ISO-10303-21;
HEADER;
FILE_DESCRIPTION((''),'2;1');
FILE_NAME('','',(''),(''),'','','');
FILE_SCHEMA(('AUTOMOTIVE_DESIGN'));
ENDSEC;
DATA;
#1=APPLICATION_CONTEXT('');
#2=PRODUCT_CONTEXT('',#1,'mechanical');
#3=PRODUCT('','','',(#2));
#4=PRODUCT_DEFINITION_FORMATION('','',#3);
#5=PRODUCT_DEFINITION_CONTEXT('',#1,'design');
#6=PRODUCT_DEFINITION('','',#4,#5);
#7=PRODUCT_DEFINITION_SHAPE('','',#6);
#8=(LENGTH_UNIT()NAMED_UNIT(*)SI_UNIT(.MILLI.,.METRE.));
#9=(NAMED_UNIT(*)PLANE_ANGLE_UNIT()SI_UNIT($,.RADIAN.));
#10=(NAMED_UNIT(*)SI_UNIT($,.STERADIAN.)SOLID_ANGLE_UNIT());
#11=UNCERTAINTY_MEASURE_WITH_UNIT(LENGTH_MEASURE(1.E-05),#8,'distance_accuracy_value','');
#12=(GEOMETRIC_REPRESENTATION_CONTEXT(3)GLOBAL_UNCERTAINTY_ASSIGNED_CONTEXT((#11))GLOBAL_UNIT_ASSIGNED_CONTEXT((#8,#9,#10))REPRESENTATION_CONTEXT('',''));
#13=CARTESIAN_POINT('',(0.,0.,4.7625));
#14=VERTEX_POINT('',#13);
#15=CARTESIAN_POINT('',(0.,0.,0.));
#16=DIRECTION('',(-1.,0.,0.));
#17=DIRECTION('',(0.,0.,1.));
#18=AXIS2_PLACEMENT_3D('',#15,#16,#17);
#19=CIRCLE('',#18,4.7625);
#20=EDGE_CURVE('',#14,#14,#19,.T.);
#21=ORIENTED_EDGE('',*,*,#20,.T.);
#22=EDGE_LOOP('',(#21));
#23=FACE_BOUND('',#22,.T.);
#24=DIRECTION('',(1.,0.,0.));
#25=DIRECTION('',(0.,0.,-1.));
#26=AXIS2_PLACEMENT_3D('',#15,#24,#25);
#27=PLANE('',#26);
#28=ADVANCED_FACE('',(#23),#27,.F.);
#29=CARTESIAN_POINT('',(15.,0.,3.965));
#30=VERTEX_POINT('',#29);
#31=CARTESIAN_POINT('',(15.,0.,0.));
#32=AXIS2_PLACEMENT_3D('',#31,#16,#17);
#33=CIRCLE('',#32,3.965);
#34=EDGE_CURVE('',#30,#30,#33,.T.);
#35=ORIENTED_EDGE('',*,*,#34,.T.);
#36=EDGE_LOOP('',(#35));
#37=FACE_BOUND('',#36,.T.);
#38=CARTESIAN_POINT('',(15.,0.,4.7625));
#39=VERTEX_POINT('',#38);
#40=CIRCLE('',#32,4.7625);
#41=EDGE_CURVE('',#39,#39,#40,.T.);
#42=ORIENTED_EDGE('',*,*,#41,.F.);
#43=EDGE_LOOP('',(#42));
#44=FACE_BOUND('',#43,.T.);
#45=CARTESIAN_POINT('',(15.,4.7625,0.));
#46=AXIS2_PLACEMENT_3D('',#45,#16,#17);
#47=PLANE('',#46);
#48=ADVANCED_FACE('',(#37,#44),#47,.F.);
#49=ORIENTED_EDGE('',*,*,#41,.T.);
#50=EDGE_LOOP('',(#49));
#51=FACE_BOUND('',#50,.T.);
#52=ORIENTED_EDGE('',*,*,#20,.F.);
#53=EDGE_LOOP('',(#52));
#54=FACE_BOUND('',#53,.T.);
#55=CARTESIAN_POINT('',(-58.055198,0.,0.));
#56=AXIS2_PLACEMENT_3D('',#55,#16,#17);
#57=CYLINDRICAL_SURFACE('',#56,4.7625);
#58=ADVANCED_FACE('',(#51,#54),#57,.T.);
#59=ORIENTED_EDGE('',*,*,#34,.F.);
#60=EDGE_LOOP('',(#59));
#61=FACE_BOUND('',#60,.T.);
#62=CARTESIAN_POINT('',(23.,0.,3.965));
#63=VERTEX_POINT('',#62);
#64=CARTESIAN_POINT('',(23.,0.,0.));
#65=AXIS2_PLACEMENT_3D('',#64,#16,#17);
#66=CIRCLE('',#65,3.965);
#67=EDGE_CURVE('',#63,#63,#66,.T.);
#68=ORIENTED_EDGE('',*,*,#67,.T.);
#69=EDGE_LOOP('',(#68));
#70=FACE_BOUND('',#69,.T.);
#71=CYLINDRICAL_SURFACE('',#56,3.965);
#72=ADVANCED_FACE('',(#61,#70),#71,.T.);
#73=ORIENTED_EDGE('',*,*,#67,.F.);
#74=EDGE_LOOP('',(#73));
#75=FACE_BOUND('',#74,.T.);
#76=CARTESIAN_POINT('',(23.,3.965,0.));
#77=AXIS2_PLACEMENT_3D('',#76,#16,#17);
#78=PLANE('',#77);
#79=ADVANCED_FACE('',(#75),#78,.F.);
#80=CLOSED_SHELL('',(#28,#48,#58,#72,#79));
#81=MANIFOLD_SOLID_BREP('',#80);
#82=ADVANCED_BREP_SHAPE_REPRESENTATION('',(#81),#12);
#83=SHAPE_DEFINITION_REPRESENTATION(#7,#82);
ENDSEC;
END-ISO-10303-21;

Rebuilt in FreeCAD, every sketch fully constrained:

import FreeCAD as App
import Part
import Sketcher
from FreeCAD import Vector
Q = App.Units.Quantity

doc = App.newDocument("Part")
params = doc.addObject("Spreadsheet::Sheet", "Params")
for row, (alias, value) in enumerate([
    ("sketch1_width", "23 mm"),
    ("sketch1_width2", "8 mm"),
    ("revolution_angle", "360 deg"),
], start=1):
    params.set(f"A{row}", alias)
    params.set(f"B{row}", "=" + value)
    params.setAlias(f"B{row}", alias)

body = doc.addObject("PartDesign::Body", "Body")

sketch1 = doc.addObject("Sketcher::SketchObject", "Sketch")
body.addObject(sketch1)
sketch1.AttachmentSupport = (doc.XY_Plane, [""])
sketch1.MapMode = "FlatFace"
sketch1.addGeometry([
    Part.LineSegment(Vector(0, 4.7625, 0), Vector(0, 0, 0)),
    Part.LineSegment(Vector(0, 0, 0), Vector(23, 0, 0)),
    Part.LineSegment(Vector(23, 0, 0), Vector(23, 3.965, 0)),
    Part.LineSegment(Vector(23, 3.965, 0), Vector(15, 3.965, 0)),
    Part.LineSegment(Vector(15, 3.965, 0), Vector(15, 4.7625, 0)),
    Part.LineSegment(Vector(15, 4.7625, 0), Vector(0, 4.7625, 0)),
], False)
sketch1.addConstraint([
    Sketcher.Constraint("Coincident", 0, 2, 1, 1),
    Sketcher.Constraint("Coincident", 1, 2, 2, 1),
    Sketcher.Constraint("Coincident", 2, 2, 3, 1),
    Sketcher.Constraint("Coincident", 3, 2, 4, 1),
    Sketcher.Constraint("Coincident", 4, 2, 5, 1),
    Sketcher.Constraint("Coincident", 5, 2, 0, 1),
    Sketcher.Constraint("Vertical", 0),
    Sketcher.Constraint("Horizontal", 1),
    Sketcher.Constraint("Vertical", 2),
    Sketcher.Constraint("Horizontal", 3),
    Sketcher.Constraint("Vertical", 4),
    Sketcher.Constraint("Horizontal", 5),
    Sketcher.Constraint("Coincident", 0, 2, -1, 1),
    Sketcher.Constraint("DistanceX", 1, 1, 1, 2, Q("23 mm")),
    Sketcher.Constraint("DistanceX", 3, 2, 3, 1, Q("8 mm")),
    Sketcher.Constraint("DistanceY", 2, 1, 2, 2, Q("3.965 mm")),
    Sketcher.Constraint("DistanceY", 0, 2, 0, 1, Q("4.7625 mm")),
])
sketch1.setExpression("Constraints[13]", "Params.sketch1_width")
sketch1.setExpression("Constraints[14]", "Params.sketch1_width2")
revolution = doc.addObject("PartDesign::Revolution", "Revolution")
body.addObject(revolution)
revolution.Profile = sketch1
revolution.ReferenceAxis = (sketch1, ["H_Axis"])
revolution.setExpression("Angle", "Params.revolution_angle")

doc.recompute()
